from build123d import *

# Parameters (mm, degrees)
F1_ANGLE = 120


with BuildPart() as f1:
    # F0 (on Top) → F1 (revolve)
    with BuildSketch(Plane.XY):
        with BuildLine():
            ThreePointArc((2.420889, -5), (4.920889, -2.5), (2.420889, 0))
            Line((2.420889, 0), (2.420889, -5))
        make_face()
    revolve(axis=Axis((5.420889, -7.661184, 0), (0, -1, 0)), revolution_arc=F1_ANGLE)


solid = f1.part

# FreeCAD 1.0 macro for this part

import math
import FreeCAD as App
import Part
import Sketcher

V = App.Vector
Q = App.Units.Quantity

doc = App.newDocument("Part")
body = doc.addObject("PartDesign::Body", "Body")

# Sketch on XY plane
sketch1 = body.newObject("Sketcher::SketchObject", "Sketch")
sketch1.AttachmentSupport = (doc.getObject("XY_Plane"), [""])
sketch1.MapMode = "FlatFace"
sketch1.addGeometry([
    Part.ArcOfCircle(Part.Circle(V(2.4, -2.5, 0), V(0, 0, 1), 2.5), math.radians(-90), math.radians(90)),
    Part.LineSegment(V(2.4, 0, 0), V(2.4, -5, 0)),
], False)
sketch1.addGeometry(Part.LineSegment(V(5.4, 0, 0), V(5.4, -5, 0)), True)  # axis
sketch1.addConstraint([
    Sketcher.Constraint("Coincident", 0, 1, 1, 2),
    Sketcher.Constraint("Coincident", 1, 1, 0, 2),
    Sketcher.Constraint("Vertical", 1),
    Sketcher.Constraint("Vertical", 2),
    Sketcher.Constraint("PointOnObject", 1, 1, -1),
    Sketcher.Constraint("PointOnObject", 2, 1, -1),
    Sketcher.Constraint("Horizontal", 0, 1, 2, 2),
    Sketcher.Constraint("Radius", 0, Q("2.5 mm")),
    Sketcher.Constraint("DistanceX", 1, 1, 2, 1, Q("3 mm")),
    Sketcher.Constraint("DistanceX", 0, 3, 2, 1, Q("3 mm")),
    Sketcher.Constraint("DistanceX", -1, 1, 0, 3, Q("2.420889 mm")),
])
revolution = body.newObject("PartDesign::Revolution", "Revolution")
revolution.Profile = sketch1
revolution.ReferenceAxis = (sketch1, ["Axis0"])
revolution.Angle = 120

doc.recompute()
